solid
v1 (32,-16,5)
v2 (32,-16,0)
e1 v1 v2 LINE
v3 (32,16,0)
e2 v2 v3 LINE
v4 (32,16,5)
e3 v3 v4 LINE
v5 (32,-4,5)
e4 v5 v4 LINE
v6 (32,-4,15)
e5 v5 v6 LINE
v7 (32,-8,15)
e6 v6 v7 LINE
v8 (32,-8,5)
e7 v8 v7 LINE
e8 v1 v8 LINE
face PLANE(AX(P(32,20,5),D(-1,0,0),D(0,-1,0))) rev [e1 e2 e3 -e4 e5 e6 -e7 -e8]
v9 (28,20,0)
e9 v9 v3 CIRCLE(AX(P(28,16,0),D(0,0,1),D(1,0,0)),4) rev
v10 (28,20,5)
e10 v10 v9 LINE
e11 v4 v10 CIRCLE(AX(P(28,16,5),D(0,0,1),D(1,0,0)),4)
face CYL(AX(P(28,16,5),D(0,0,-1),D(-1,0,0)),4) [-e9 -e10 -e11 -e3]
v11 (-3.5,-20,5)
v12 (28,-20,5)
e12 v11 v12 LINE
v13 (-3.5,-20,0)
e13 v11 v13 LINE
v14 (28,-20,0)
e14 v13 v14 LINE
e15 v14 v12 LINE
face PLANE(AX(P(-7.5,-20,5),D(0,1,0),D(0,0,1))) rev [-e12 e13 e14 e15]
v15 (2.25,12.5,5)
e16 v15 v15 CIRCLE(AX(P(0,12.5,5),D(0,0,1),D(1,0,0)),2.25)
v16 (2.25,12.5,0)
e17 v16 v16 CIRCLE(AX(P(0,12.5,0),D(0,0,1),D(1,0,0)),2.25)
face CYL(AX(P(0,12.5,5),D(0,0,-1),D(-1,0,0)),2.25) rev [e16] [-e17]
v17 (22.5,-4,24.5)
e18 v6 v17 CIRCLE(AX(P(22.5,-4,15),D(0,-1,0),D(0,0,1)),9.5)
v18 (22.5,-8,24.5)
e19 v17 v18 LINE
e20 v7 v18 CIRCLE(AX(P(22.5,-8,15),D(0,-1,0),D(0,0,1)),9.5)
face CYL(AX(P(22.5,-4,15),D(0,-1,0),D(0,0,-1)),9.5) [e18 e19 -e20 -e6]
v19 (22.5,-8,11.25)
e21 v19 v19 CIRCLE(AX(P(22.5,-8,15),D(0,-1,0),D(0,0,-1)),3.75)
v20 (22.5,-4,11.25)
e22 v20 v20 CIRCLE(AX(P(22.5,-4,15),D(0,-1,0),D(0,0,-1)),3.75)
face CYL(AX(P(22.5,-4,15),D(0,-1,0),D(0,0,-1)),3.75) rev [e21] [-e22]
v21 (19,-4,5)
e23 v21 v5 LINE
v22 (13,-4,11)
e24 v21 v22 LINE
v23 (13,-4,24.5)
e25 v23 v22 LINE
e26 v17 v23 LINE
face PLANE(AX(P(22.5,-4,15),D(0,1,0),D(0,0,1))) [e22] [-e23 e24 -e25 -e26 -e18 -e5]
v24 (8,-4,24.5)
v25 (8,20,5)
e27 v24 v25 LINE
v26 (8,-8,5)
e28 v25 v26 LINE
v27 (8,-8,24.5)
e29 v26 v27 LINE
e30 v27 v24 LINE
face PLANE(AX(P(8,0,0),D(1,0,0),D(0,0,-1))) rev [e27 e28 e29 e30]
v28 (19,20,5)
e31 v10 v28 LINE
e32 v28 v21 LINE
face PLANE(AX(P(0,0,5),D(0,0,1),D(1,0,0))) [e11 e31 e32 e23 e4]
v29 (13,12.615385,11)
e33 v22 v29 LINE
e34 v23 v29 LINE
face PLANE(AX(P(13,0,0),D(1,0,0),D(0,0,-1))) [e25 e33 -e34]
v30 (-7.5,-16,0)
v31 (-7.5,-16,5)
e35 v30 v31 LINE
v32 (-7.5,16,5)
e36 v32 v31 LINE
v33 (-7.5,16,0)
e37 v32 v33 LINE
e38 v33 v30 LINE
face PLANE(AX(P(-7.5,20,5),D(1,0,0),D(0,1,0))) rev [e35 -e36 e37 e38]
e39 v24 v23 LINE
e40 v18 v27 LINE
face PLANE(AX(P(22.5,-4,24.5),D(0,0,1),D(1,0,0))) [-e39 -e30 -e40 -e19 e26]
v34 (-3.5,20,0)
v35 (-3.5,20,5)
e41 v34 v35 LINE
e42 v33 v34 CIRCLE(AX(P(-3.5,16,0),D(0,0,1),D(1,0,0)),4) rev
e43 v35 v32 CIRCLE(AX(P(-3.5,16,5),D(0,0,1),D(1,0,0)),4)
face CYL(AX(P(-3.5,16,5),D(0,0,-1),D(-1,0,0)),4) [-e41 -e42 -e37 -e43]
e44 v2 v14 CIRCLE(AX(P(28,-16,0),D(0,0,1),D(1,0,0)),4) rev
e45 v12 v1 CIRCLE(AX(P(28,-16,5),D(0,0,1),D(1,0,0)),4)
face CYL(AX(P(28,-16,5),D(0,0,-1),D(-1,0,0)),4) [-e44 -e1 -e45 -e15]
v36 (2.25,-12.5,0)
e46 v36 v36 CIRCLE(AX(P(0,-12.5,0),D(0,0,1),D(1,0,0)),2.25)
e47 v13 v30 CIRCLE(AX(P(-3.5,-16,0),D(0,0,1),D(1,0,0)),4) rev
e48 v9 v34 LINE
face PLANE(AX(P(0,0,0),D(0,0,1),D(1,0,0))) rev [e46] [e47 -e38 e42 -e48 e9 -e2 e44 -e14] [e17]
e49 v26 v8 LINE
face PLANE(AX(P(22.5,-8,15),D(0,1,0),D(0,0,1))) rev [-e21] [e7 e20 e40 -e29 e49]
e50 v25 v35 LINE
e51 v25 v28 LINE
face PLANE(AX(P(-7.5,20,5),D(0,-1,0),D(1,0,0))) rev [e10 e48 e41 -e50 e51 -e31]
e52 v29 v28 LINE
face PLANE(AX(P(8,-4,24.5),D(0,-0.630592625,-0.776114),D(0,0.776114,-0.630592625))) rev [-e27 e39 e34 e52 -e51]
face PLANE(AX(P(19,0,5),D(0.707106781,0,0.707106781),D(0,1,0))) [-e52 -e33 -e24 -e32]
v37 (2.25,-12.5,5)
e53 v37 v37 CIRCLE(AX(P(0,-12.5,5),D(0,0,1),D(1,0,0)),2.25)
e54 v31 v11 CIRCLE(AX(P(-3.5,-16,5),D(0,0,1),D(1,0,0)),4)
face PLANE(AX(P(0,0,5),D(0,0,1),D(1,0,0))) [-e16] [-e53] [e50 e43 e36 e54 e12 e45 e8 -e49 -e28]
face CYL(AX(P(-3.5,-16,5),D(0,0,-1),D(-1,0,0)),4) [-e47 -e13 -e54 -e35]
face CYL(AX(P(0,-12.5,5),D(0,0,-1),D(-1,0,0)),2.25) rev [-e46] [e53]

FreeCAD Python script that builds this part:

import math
import FreeCAD as App
import Part
import Sketcher


def edges_at(feature, points):
    """Names of the edges that pass closest to the given points."""
    edges = feature.Shape.Edges
    near = lambda p: min(range(len(edges)), key=lambda i: edges[i].distToShape(Part.Vertex(*p))[0])
    return sorted({f"Edge{near(p) + 1}" for p in points})

doc = App.newDocument("Part")
body = doc.addObject("PartDesign::Body", "Body")

# Sketch on XY plane
sketch1 = body.newObject("Sketcher::SketchObject", "Sketch")
sketch1.AttachmentSupport = (doc.getObject("XY_Plane"), [""])
sketch1.MapMode = "FlatFace"
sketch1.addGeometry([
    Part.LineSegment(App.Vector(-7.5, 20, 0), App.Vector(-7.5, -20, 0)),  # 0
    Part.LineSegment(App.Vector(-7.5, -20, 0), App.Vector(32, -20, 0)),  # 1
    Part.LineSegment(App.Vector(32, -20, 0), App.Vector(32, 20, 0)),  # 2
    Part.LineSegment(App.Vector(32, 20, 0), App.Vector(-7.5, 20, 0)),  # 3
    Part.Circle(App.Vector(0, -12.5, 0), App.Vector(0, 0, 1), 2.25),  # 4
    Part.Circle(App.Vector(0, 12.5, 0), App.Vector(0, 0, 1), 2.25),  # 5
], False)
sketch1.addConstraint([
    Sketcher.Constraint("Coincident", 0, 2, 1, 1),
    Sketcher.Constraint("Coincident", 1, 2, 2, 1),
    Sketcher.Constraint("Coincident", 2, 2, 3, 1),
    Sketcher.Constraint("Coincident", 3, 2, 0, 1),
    Sketcher.Constraint("Vertical", 0),
    Sketcher.Constraint("Horizontal", 1),
    Sketcher.Constraint("Vertical", 2),
    Sketcher.Constraint("Horizontal", 3),
    Sketcher.Constraint("Equal", 4, 5),
    Sketcher.Constraint("Symmetric", 4, 3, 5, 3, -1, 1),
    Sketcher.Constraint("PointOnObject", 4, 3, -2),
    Sketcher.Constraint("Diameter", 4, 4.5),
    Sketcher.Constraint("DistanceY", 0, 2, 0, 1, 40.0),
    Sketcher.Constraint("DistanceX", 1, 1, 1, 2, 39.5),
    Sketcher.Constraint("DistanceY", 0, 2, -1, 1, 20.0),
    Sketcher.Constraint("DistanceX", -1, 1, 1, 2, 32.0),
    Sketcher.Constraint("DistanceY", 4, 3, 5, 3, 25.0),
])
pad1 = body.newObject("PartDesign::Pad", "Pad")
pad1.Profile = sketch1
pad1.Length = 5

# Sketch on XZ plane
sketch2 = body.newObject("Sketcher::SketchObject", "Sketch001")
sketch2.AttachmentSupport = (doc.getObject("XZ_Plane"), [""])
sketch2.MapMode = "FlatFace"
sketch2.AttachmentOffset = App.Placement(App.Vector(0, 0, 8), App.Rotation())
sketch2.addGeometry([
    Part.LineSegment(App.Vector(13, 5, 0), App.Vector(32, 5, 0)),  # 0
    Part.LineSegment(App.Vector(32, 5, 0), App.Vector(32, 15, 0)),  # 1
    Part.ArcOfCircle(Part.Circle(App.Vector(22.5, 15, 0), App.Vector(0, 0, 1), 9.5), math.radians(0), math.radians(90)),  # 2
    Part.LineSegment(App.Vector(22.5, 24.5, 0), App.Vector(13, 24.5, 0)),  # 3
    Part.LineSegment(App.Vector(13, 24.5, 0), App.Vector(13, 5, 0)),  # 4
    Part.Circle(App.Vector(22.5, 15, 0), App.Vector(0, 0, 1), 3.75),  # 5
], False)
sketch2.addConstraint([
    Sketcher.Constraint("Coincident", 0, 2, 1, 1),
    Sketcher.Constraint("Tangent", 1, 2, 2, 1),
    Sketcher.Constraint("Tangent", 2, 2, 3, 1),
    Sketcher.Constraint("Coincident", 3, 2, 4, 1),
    Sketcher.Constraint("Coincident", 4, 2, 0, 1),
    Sketcher.Constraint("Horizontal", 0),
    Sketcher.Constraint("Vertical", 1),
    Sketcher.Constraint("Horizontal", 3),
    Sketcher.Constraint("Vertical", 4),
    Sketcher.Constraint("Coincident", 5, 3, 2, 3),
    Sketcher.Constraint("Diameter", 5, 7.5),
    Sketcher.Constraint("Radius", 2, 9.5),
    Sketcher.Constraint("DistanceX", 0, 1, 0, 2, 19.0),
    Sketcher.Constraint("DistanceY", 1, 1, 1, 2, 10.0),
    Sketcher.Constraint("DistanceY", -1, 1, 2, 3, 15.0),
    Sketcher.Constraint("DistanceX", -1, 1, 0, 2, 32.0),
])
pad2 = body.newObject("PartDesign::Pad", "Pad001")
pad2.Profile = sketch2
pad2.Length = 4
pad2.Reversed = True

# Sketch on YZ plane
sketch3 = body.newObject("Sketcher::SketchObject", "Sketch002")
sketch3.AttachmentSupport = (doc.getObject("YZ_Plane"), [""])
sketch3.MapMode = "FlatFace"
sketch3.AttachmentOffset = App.Placement(App.Vector(0, 0, 13), App.Rotation())
sketch3.addGeometry([
    Part.LineSegment(App.Vector(-4, 24.5, 0), App.Vector(20, 5, 0)),
    Part.LineSegment(App.Vector(20, 5, 0), App.Vector(-8, 5, 0)),
    Part.LineSegment(App.Vector(-8, 5, 0), App.Vector(-8, 24.5, 0)),
    Part.LineSegment(App.Vector(-8, 24.5, 0), App.Vector(-4, 24.5, 0)),
], False)
sketch3.addConstraint([
    Sketcher.Constraint("Coincident", 0, 2, 1, 1),
    Sketcher.Constraint("Coincident", 1, 2, 2, 1),
    Sketcher.Constraint("Coincident", 2, 2, 3, 1),
    Sketcher.Constraint("Coincident", 3, 2, 0, 1),
    Sketcher.Constraint("Horizontal", 1),
    Sketcher.Constraint("Vertical", 2),
    Sketcher.Constraint("Horizontal", 3),
    Sketcher.Constraint("DistanceX", 1, 2, 1, 1, 28.0),
    Sketcher.Constraint("DistanceX", 3, 1, 3, 2, 4.0),
    Sketcher.Constraint("DistanceY", 2, 1, 2, 2, 19.5),
    Sketcher.Constraint("DistanceX", -1, 1, 0, 2, 20.0),
    Sketcher.Constraint("DistanceY", -1, 1, 0, 2, 5.0),
])
pad3 = body.newObject("PartDesign::Pad", "Pad002")
pad3.Profile = sketch3
pad3.Length = 5
pad3.Reversed = True
doc.recompute()

fillet = body.newObject("PartDesign::Fillet", "Fillet")
fillet.Base = (pad3, edges_at(pad3, [
    (32, 20, 2.5),
    (-7.5, -20, 2.5),
    (-7.5, 20, 2.5),
    (32, -20, 2.5),
]))
fillet.Radius = 4
doc.recompute()

chamfer = body.newObject("PartDesign::Chamfer", "Chamfer")
chamfer.Base = (fillet, edges_at(fillet, [(13, 8, 5)]))
chamfer.Size = 6

doc.recompute()
